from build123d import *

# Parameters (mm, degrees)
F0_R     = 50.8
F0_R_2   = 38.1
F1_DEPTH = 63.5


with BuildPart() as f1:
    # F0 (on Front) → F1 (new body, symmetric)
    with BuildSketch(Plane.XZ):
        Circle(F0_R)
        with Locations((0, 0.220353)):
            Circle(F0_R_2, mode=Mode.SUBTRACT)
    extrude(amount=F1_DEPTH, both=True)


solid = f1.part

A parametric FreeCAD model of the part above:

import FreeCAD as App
import Part
import Sketcher
Q = App.Units.Quantity

doc = App.newDocument("Part")
body = doc.addObject("PartDesign::Body", "Body")

sketch1 = doc.addObject("Sketcher::SketchObject", "Sketch")
body.addObject(sketch1)
sketch1.AttachmentSupport = (doc.XZ_Plane, [""])
sketch1.MapMode = "FlatFace"
sketch1.addGeometry([
    Part.Circle(App.Vector(0, 0, 0), App.Vector(0, 0, 1), 50.8),
    Part.Circle(App.Vector(0, 0.220353, 0), App.Vector(0, 0, 1), 38.1),
], False)
sketch1.addConstraint([
    Sketcher.Constraint("Coincident", 0, 3, -1, 1),
    Sketcher.Constraint("PointOnObject", 1, 3, -2),
    Sketcher.Constraint("Diameter", 0, Q("4 in")),
    Sketcher.Constraint("Diameter", 1, Q("3 in")),
    Sketcher.Constraint("DistanceY", -1, 1, 1, 3, 0.220353),
])
pad1 = doc.addObject("PartDesign::Pad", "Pad")
body.addObject(pad1)
pad1.Profile = sketch1
pad1.Length = Q("5 in")
pad1.Midplane = True

doc.recompute()
